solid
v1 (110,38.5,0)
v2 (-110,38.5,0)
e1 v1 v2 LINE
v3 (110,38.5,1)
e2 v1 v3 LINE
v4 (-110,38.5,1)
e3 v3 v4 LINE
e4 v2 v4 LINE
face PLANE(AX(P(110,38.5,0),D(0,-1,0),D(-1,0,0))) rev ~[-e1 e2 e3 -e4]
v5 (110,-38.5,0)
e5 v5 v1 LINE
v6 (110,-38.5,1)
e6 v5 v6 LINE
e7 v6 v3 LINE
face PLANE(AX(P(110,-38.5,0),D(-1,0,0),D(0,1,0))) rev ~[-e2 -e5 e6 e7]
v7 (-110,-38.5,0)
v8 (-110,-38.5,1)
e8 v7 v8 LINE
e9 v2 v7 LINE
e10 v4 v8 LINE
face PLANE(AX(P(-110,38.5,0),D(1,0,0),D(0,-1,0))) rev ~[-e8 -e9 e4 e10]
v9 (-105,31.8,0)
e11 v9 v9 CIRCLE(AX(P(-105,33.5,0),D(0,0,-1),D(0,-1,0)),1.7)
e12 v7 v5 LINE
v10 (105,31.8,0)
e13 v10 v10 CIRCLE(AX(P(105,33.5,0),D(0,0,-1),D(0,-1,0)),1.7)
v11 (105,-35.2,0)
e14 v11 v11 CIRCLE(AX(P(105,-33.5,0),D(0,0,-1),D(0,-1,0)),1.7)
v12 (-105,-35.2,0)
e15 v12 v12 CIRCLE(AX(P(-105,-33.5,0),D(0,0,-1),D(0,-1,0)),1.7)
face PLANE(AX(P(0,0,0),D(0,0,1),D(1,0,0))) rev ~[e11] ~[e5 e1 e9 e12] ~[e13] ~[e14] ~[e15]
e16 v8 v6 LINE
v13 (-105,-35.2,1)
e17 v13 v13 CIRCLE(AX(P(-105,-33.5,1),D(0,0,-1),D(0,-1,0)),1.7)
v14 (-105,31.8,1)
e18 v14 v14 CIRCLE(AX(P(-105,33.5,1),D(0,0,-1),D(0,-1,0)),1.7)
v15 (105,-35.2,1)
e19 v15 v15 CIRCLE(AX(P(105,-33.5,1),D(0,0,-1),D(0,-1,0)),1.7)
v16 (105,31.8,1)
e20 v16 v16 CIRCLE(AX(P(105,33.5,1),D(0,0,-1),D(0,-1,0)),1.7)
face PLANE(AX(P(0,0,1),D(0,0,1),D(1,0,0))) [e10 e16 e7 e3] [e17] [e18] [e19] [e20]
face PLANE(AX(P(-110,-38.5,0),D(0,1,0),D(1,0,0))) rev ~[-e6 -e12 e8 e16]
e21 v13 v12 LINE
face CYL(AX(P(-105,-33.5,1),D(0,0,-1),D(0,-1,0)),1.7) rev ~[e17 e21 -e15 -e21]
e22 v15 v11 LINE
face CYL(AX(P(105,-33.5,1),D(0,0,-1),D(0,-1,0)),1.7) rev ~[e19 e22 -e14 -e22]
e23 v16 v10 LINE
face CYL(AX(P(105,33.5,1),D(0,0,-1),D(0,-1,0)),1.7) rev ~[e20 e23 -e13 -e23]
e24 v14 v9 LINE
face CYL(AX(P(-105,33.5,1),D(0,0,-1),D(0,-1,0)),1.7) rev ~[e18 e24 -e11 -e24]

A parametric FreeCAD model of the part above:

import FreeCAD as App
import Part
import Sketcher
from FreeCAD import Vector

doc = App.newDocument("Part")
body = doc.addObject("PartDesign::Body", "Body")

sketch1 = body.newObject("Sketcher::SketchObject", "Sketch")
sketch1.AttachmentSupport = (doc.getObject("XY_Plane"), [""])
sketch1.MapMode = "FlatFace"
sketch1.addGeometry([
    Part.LineSegment(Vector(-110, 38, 0), Vector(-110, -38, 0)),
    Part.LineSegment(Vector(-110, -38, 0), Vector(110, -38, 0)),
    Part.LineSegment(Vector(110, -38, 0), Vector(110, 38, 0)),
    Part.LineSegment(Vector(110, 38, 0), Vector(-110, 38, 0)),
], False)
sketch1.addConstraint([
    Sketcher.Constraint("Coincident", 0, 2, 1, 1),
    Sketcher.Constraint("Coincident", 1, 2, 2, 1),
    Sketcher.Constraint("Coincident", 2, 2, 3, 1),
    Sketcher.Constraint("Coincident", 3, 2, 0, 1),
    Sketcher.Constraint("Vertical", 0),
    Sketcher.Constraint("Horizontal", 1),
    Sketcher.Constraint("Vertical", 2),
    Sketcher.Constraint("Horizontal", 3),
    Sketcher.Constraint("Symmetric", 0, 2, 2, 2, -1, 1),
    Sketcher.Constraint("DistanceX", 1, 1, 1, 2, 220.0),
    Sketcher.Constraint("DistanceY", 0, 2, 0, 1, 77.0),
])
pad1 = body.newObject("PartDesign::Pad", "Pad")
pad1.Profile = sketch1
pad1.Length = 1

sketch2 = body.newObject("Sketcher::SketchObject", "Sketch001")
sketch2.AttachmentSupport = (doc.getObject("XY_Plane"), [""])
sketch2.MapMode = "FlatFace"
sketch2.AttachmentOffset = App.Placement(Vector(0, 0, 1), App.Rotation())
sketch2.addGeometry([
    Part.Circle(Vector(-105, 33.5, 0), Vector(0, 0, 1), 1.7),
    Part.Circle(Vector(-105, -33.5, 0), Vector(0, 0, 1), 1.7),
    Part.Circle(Vector(105, -33.5, 0), Vector(0, 0, 1), 1.7),
    Part.Circle(Vector(105, 33.5, 0), Vector(0, 0, 1), 1.7),
], False)
sketch2.addConstraint([
    Sketcher.Constraint("Equal", 0, 1),
    Sketcher.Constraint("Equal", 1, 2),
    Sketcher.Constraint("Equal", 2, 3),
    Sketcher.Constraint("Symmetric", 0, 3, 2, 3, -1, 1),
    Sketcher.Constraint("Symmetric", 1, 3, 3, 3, -1, 1),
    Sketcher.Constraint("Symmetric", 1, 3, 2, 3, -2),
    Sketcher.Constraint("Diameter", 0, 3.4),
    Sketcher.Constraint("DistanceX", 0, 3, -1, 1, 105.0),
    Sketcher.Constraint("DistanceY", 1, 3, 0, 3, 67.0),
])
doc.recompute()
hole = body.newObject("PartDesign::Hole", "Hole")
hole.Profile = sketch2
hole.ThreadType = "None"
hole.Diameter = 3.4
hole.DepthType = "Dimension"
hole.Depth = 1
hole.DrillPoint = "Flat"

doc.recompute()
